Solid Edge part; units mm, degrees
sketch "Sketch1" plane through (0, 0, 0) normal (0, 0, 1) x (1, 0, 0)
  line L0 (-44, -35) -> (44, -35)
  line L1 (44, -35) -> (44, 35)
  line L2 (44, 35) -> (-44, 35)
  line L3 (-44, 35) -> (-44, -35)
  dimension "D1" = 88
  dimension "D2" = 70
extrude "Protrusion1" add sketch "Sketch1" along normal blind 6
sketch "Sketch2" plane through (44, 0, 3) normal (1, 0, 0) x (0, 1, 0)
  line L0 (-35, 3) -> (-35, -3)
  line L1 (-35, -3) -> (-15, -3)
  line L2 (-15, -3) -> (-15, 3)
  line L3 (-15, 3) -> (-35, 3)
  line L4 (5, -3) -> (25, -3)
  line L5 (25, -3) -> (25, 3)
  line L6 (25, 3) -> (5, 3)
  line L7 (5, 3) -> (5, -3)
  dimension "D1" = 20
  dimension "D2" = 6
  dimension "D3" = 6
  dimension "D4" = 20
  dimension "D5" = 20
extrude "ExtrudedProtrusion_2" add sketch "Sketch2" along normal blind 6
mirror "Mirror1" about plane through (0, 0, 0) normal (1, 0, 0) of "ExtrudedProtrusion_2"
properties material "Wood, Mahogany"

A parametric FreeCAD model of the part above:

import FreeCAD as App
import Part
import Sketcher
from FreeCAD import Vector


def add_polygon(sketch, points):
    """Adds a closed chain of lines whose ends are joined by coincident constraints."""
    first, n = sketch.GeometryCount, len(points)
    for a, b in zip(points, points[1:] + points[:1]):
        sketch.addGeometry(Part.LineSegment(App.Vector(*a, 0), App.Vector(*b, 0)), False)
    for i in range(n):
        sketch.addConstraint(Sketcher.Constraint("Coincident", first + i, 2, first + (i + 1) % n, 1))

doc = App.newDocument("Part")
body = doc.addObject("PartDesign::Body", "Body")

# Sketch on XY plane
sketch1 = body.newObject("Sketcher::SketchObject", "Sketch")
sketch1.AttachmentSupport = (doc.getObject("XY_Plane"), [""])
sketch1.MapMode = "FlatFace"
add_polygon(sketch1, [(-44, 35), (-44, -35), (44, -35), (44, 35)])  # lines 0-3
sketch1.addConstraint([
    Sketcher.Constraint("Vertical", 0),
    Sketcher.Constraint("Horizontal", 1),
    Sketcher.Constraint("Vertical", 2),
    Sketcher.Constraint("Horizontal", 3),
    Sketcher.Constraint("Symmetric", 0, 2, 2, 2, -1, 1),
    Sketcher.Constraint("DistanceX", 0, 2, -1, 1, 44.0),
    Sketcher.Constraint("DistanceY", 0, 2, 0, 1, 70.0),
])
pad1 = body.newObject("PartDesign::Pad", "Pad")
pad1.Profile = sketch1
pad1.Length = 6

# Sketch on YZ plane
sketch2 = body.newObject("Sketcher::SketchObject", "Sketch001")
sketch2.AttachmentSupport = (doc.getObject("YZ_Plane"), [""])
sketch2.MapMode = "FlatFace"
sketch2.AttachmentOffset = App.Placement(Vector(0, 0, 44), App.Rotation())
add_polygon(sketch2, [(-15, 6), (-35, 6), (-35, 0), (-15, 0)])  # lines 0-3
add_polygon(sketch2, [(5, 6), (5, 0), (25, 0), (25, 6)])  # lines 4-7
sketch2.addConstraint([
    Sketcher.Constraint("Horizontal", 0),
    Sketcher.Constraint("Vertical", 1),
    Sketcher.Constraint("Horizontal", 2),
    Sketcher.Constraint("Vertical", 3),
    Sketcher.Constraint("Vertical", 4),
    Sketcher.Constraint("Horizontal", 5),
    Sketcher.Constraint("Vertical", 6),
    Sketcher.Constraint("Horizontal", 7),
    Sketcher.Constraint("PointOnObject", 1, 2, -1),
    Sketcher.Constraint("PointOnObject", 4, 2, -1),
    Sketcher.Constraint("Horizontal", 3, 2, 6, 2),
    Sketcher.Constraint("Equal", 2, 5),
    Sketcher.Constraint("DistanceX", 2, 2, -1, 1, 15.0),
    Sketcher.Constraint("DistanceX", 0, 2, 0, 1, 20.0),
    Sketcher.Constraint("DistanceY", 1, 2, 1, 1, 6.0),
    Sketcher.Constraint("DistanceX", -1, 1, 4, 2, 5.0),
])
pad2 = body.newObject("PartDesign::Pad", "Pad001")
pad2.Profile = sketch2
pad2.Length = 6
doc.recompute()

mirrored = body.newObject("PartDesign::Mirrored", "Mirrored")
mirrored.Originals = [pad2]
mirrored.MirrorPlane = (doc.getObject("YZ_Plane"), [""])
body.Tip = mirrored

doc.recompute()
